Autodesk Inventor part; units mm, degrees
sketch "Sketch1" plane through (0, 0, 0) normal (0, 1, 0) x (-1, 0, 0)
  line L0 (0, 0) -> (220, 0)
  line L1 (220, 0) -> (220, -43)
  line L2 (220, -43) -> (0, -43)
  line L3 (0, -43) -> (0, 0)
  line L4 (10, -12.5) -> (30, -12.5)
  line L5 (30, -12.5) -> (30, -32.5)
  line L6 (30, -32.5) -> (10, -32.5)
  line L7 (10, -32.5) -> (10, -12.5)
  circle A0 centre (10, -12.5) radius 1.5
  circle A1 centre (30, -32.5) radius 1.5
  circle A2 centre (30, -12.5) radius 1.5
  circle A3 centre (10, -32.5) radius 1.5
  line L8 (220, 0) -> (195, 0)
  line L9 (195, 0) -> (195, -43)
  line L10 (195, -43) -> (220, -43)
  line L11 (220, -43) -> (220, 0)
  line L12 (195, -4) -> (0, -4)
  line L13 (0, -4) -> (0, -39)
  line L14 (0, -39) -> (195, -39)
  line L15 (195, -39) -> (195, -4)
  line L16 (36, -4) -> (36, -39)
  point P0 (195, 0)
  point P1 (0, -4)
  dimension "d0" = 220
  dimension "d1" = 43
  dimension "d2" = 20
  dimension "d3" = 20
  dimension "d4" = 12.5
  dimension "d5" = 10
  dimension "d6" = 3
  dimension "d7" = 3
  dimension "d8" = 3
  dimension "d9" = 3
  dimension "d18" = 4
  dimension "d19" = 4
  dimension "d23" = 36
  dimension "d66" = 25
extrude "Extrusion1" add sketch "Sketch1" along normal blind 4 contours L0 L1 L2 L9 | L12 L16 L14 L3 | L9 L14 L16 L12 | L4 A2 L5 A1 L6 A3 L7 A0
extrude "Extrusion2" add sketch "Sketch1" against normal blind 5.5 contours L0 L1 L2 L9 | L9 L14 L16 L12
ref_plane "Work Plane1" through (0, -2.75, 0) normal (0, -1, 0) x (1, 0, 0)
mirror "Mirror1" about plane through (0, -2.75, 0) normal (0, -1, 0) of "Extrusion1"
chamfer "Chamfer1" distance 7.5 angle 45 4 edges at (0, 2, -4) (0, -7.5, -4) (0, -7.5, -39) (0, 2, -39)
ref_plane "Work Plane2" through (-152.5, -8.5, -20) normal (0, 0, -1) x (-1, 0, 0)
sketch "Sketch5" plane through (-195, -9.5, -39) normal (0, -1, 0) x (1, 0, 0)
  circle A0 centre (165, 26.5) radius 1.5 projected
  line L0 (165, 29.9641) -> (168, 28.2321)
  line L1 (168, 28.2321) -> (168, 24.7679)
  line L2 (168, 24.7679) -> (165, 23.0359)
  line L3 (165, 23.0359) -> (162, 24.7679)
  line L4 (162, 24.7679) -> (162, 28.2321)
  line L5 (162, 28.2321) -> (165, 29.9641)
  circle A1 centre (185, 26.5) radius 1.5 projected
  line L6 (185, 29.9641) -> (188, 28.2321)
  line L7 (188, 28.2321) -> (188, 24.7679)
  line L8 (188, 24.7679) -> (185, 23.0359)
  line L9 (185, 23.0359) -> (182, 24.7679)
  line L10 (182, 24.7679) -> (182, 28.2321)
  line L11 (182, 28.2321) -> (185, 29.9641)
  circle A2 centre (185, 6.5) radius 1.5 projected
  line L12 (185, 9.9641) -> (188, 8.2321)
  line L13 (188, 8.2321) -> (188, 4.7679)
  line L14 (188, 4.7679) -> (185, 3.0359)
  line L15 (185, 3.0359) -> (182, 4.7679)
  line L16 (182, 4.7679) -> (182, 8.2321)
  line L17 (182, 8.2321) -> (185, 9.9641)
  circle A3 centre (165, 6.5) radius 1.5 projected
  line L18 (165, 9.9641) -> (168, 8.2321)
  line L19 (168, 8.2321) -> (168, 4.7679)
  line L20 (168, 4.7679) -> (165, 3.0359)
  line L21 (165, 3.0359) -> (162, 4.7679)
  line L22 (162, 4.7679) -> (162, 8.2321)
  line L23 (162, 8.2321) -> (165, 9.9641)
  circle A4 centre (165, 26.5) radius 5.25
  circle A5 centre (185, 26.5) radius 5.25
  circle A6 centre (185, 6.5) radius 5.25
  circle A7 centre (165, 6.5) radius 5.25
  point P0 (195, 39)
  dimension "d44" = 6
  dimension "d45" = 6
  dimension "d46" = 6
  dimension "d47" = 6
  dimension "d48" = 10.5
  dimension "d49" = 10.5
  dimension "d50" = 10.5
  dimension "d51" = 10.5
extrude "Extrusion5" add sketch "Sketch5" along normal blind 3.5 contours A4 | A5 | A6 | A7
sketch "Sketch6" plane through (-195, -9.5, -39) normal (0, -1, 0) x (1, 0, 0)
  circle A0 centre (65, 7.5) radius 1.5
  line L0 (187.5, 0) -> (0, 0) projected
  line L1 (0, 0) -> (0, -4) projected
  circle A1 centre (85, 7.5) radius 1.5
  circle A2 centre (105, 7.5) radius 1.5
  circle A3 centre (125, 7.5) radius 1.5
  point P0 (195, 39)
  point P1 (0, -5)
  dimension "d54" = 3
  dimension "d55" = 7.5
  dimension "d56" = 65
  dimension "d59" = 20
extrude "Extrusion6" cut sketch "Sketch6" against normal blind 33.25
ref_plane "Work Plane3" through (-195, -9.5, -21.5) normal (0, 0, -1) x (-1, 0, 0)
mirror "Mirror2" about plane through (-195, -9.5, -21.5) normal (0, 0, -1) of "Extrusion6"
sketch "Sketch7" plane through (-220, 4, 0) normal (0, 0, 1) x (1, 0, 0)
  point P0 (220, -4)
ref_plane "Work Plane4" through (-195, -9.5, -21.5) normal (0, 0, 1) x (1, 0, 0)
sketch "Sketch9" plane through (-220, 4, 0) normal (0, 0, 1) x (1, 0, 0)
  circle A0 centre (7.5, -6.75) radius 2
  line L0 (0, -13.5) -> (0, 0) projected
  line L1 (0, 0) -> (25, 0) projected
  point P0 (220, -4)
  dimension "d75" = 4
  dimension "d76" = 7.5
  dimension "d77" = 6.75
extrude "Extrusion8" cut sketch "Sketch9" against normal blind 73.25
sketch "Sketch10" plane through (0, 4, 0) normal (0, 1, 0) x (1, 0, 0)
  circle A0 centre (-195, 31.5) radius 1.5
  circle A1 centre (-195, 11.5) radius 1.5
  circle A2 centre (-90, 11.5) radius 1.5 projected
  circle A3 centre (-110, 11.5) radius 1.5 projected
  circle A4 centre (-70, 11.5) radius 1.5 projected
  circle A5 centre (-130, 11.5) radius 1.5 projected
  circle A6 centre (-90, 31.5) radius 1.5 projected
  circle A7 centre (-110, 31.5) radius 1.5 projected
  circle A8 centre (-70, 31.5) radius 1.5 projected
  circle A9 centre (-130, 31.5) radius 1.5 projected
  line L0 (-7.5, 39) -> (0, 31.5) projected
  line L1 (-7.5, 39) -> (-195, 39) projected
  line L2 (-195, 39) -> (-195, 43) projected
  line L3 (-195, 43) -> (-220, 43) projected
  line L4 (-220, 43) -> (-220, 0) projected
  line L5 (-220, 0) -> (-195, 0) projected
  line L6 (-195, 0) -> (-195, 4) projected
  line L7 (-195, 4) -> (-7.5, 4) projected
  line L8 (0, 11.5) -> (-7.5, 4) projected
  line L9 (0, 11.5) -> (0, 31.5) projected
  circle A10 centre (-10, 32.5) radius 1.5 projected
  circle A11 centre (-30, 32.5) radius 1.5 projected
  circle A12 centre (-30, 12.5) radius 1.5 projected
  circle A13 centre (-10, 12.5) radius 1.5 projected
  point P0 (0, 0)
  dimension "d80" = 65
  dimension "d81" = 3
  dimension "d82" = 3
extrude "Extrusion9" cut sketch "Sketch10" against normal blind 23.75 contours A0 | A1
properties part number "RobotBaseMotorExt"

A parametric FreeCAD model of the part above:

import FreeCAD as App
import Part
import Sketcher
from FreeCAD import Vector
Q = App.Units.Quantity


def edges_at(feature, points):
    """Names of the edges that pass closest to the given points."""
    edges = feature.Shape.Edges
    near = lambda p: min(range(len(edges)), key=lambda i: edges[i].distToShape(Part.Vertex(*p))[0])
    return sorted({f"Edge{near(p) + 1}" for p in points})


def add_polygon(sketch, points):
    """Adds a closed chain of lines whose ends are joined by coincident constraints."""
    first, n = sketch.GeometryCount, len(points)
    for a, b in zip(points, points[1:] + points[:1]):
        sketch.addGeometry(Part.LineSegment(App.Vector(*a, 0), App.Vector(*b, 0)), False)
    for i in range(n):
        sketch.addConstraint(Sketcher.Constraint("Coincident", first + i, 2, first + (i + 1) % n, 1))

doc = App.newDocument("Part")
params = doc.addObject("Spreadsheet::Sheet", "Params")
for row, (alias, value) in enumerate([
    ("sketch1_diameter", "3 mm"),
    ("sketch1_width", "25 mm"),
    ("sketch1_height", "4 mm"),
    ("sketch1_height2", "43 mm"),
    ("pad1_length", "4 mm"),
    ("sketch2_width", "25 mm"),
    ("sketch2_height", "4 mm"),
    ("sketch2_height2", "43 mm"),
    ("pad2_length", "5.5 mm"),
    ("chamfer_size", "7.5 mm"),
    ("sketch3_diameter", "10.5 mm"),
    ("pad3_length", "3.5 mm"),
    ("sketch4_diameter", "3 mm"),
    ("pocket1_length", "33.25 mm"),
    ("sketch5_diameter", "4 mm"),
    ("pocket2_length", "73.25 mm"),
    ("sketch6_diameter", "3 mm"),
    ("pocket3_length", "23.75 mm"),
], start=1):
    params.set(f"A{row}", alias)
    params.set(f"B{row}", "=" + value)
    params.setAlias(f"B{row}", alias)

body = doc.addObject("PartDesign::Body", "Body")

# Sketch on XZ plane
sketch1 = body.newObject("Sketcher::SketchObject", "Sketch")
sketch1.AttachmentSupport = (doc.getObject("XZ_Plane"), [""])
sketch1.MapMode = "FlatFace"
add_polygon(sketch1, [(-220, 0), (-195, 0), (-195, -4), (0, -4), (0, -39), (-195, -39), (-195, -43), (-220, -43)])  # lines 0-7
sketch1.addGeometry(Part.Circle(Vector(-10, -12.5, 0), Vector(0, 0, 1), 1.5), False)  # 8
sketch1.addGeometry(Part.Circle(Vector(-10, -32.5, 0), Vector(0, 0, 1), 1.5), False)  # 9
sketch1.addGeometry(Part.Circle(Vector(-30, -32.5, 0), Vector(0, 0, 1), 1.5), False)  # 10
sketch1.addGeometry(Part.Circle(Vector(-30, -12.5, 0), Vector(0, 0, 1), 1.5), False)  # 11
sketch1.addConstraint(Sketcher.Constraint("Horizontal", 0))
sketch1.addConstraint(Sketcher.Constraint("Vertical", 1))
sketch1.addConstraint(Sketcher.Constraint("Horizontal", 2))
sketch1.addConstraint(Sketcher.Constraint("Vertical", 3))
sketch1.addConstraint(Sketcher.Constraint("Horizontal", 4))
sketch1.addConstraint(Sketcher.Constraint("Vertical", 5))
sketch1.addConstraint(Sketcher.Constraint("Horizontal", 6))
sketch1.addConstraint(Sketcher.Constraint("Vertical", 7))
sketch1.addConstraint(Sketcher.Constraint("Equal", 8, 9))
sketch1.addConstraint(Sketcher.Constraint("Equal", 9, 10))
sketch1.addConstraint(Sketcher.Constraint("Equal", 10, 11))
sketch1.addConstraint(Sketcher.Constraint("PointOnObject", 0, 2, -1))
sketch1.addConstraint(Sketcher.Constraint("PointOnObject", 2, 2, -2))
sketch1.addConstraint(Sketcher.Constraint("Horizontal", 9, 3, 10, 3))
sketch1.addConstraint(Sketcher.Constraint("Horizontal", 8, 3, 11, 3))
sketch1.addConstraint(Sketcher.Constraint("Vertical", 8, 3, 9, 3))
sketch1.addConstraint(Sketcher.Constraint("Vertical", 10, 3, 11, 3))
sketch1.addConstraint(Sketcher.Constraint("Vertical", 1, 2, 4, 2))
sketch1.addConstraint(Sketcher.Constraint("Equal", 1, 5))
sketch1.addConstraint(Sketcher.Constraint("Diameter", 8, 3.0))
sketch1.addConstraint(Sketcher.Constraint("DistanceX", 0, 1, 0, 2, 25.0))
sketch1.addConstraint(Sketcher.Constraint("DistanceY", 1, 2, 1, 1, 4.0))
sketch1.addConstraint(Sketcher.Constraint("DistanceY", 7, 1, 7, 2, 43.0))
sketch1.addConstraint(Sketcher.Constraint("DistanceX", 8, 3, -1, 1, 10.0))
sketch1.addConstraint(Sketcher.Constraint("DistanceX", 6, 2, -1, 1, 220.0))
sketch1.addConstraint(Sketcher.Constraint("DistanceY", 9, 3, 8, 3, 20.0))
sketch1.addConstraint(Sketcher.Constraint("DistanceX", 10, 3, 9, 3, 20.0))
sketch1.addConstraint(Sketcher.Constraint("DistanceY", 8, 3, -1, 1, 12.5))
sketch1.setExpression("Constraints[27]", "Params.sketch1_diameter")
sketch1.setExpression("Constraints[28]", "Params.sketch1_width")
sketch1.setExpression("Constraints[29]", "Params.sketch1_height")
sketch1.setExpression("Constraints[30]", "Params.sketch1_height2")
pad1 = body.newObject("PartDesign::Pad", "Pad")
pad1.Profile = sketch1
pad1.setExpression("Length", "Params.pad1_length")
pad1.Reversed = True

# Sketch on XZ plane
sketch2 = body.newObject("Sketcher::SketchObject", "Sketch001")
sketch2.AttachmentSupport = (doc.getObject("XZ_Plane"), [""])
sketch2.MapMode = "FlatFace"
add_polygon(sketch2, [(-220, 0), (-195, 0), (-195, -4), (-36, -4), (-36, -39), (-195, -39), (-195, -43), (-220, -43)])  # lines 0-7
sketch2.addConstraint(Sketcher.Constraint("Horizontal", 0))
sketch2.addConstraint(Sketcher.Constraint("Vertical", 1))
sketch2.addConstraint(Sketcher.Constraint("Horizontal", 2))
sketch2.addConstraint(Sketcher.Constraint("Vertical", 3))
sketch2.addConstraint(Sketcher.Constraint("Horizontal", 4))
sketch2.addConstraint(Sketcher.Constraint("Vertical", 5))
sketch2.addConstraint(Sketcher.Constraint("Horizontal", 6))
sketch2.addConstraint(Sketcher.Constraint("Vertical", 7))
sketch2.addConstraint(Sketcher.Constraint("PointOnObject", 0, 2, -1))
sketch2.addConstraint(Sketcher.Constraint("Vertical", 1, 2, 4, 2))
sketch2.addConstraint(Sketcher.Constraint("Equal", 1, 5))
sketch2.addConstraint(Sketcher.Constraint("DistanceX", 0, 1, 0, 2, 25.0))
sketch2.addConstraint(Sketcher.Constraint("DistanceY", 1, 2, 1, 1, 4.0))
sketch2.addConstraint(Sketcher.Constraint("DistanceY", 7, 1, 7, 2, 43.0))
sketch2.addConstraint(Sketcher.Constraint("DistanceX", 2, 2, -1, 1, 36.0))
sketch2.addConstraint(Sketcher.Constraint("DistanceX", 6, 2, -1, 1, 220.0))
sketch2.setExpression("Constraints[19]", "Params.sketch2_width")
sketch2.setExpression("Constraints[20]", "Params.sketch2_height")
sketch2.setExpression("Constraints[21]", "Params.sketch2_height2")
pad2 = body.newObject("PartDesign::Pad", "Pad001")
pad2.Profile = sketch2
pad2.setExpression("Length", "Params.pad2_length")
doc.recompute()

datumplane = body.newObject("PartDesign::Plane", "DatumPlane")
datumplane.AttachmentSupport = (doc.getObject("XZ_Plane"), [""])
datumplane.MapMode = "FlatFace"
datumplane.AttachmentOffset = App.Placement(Vector(0, 0, 2.75), App.Rotation())
mirrored = body.newObject("PartDesign::Mirrored", "Mirrored")
mirrored.Originals = [pad1]
mirrored.MirrorPlane = (datumplane, [""])
body.Tip = mirrored
doc.recompute()

chamfer = body.newObject("PartDesign::Chamfer", "Chamfer")
chamfer.Base = (mirrored, edges_at(mirrored, [
    (0, 2, -4),
    (0, -7.5, -4),
    (0, -7.5, -39),
    (0, 2, -39),
]))
chamfer.setExpression("Size", "Params.chamfer_size")

# Sketch on XZ plane
sketch3 = body.newObject("Sketcher::SketchObject", "Sketch002")
sketch3.AttachmentSupport = (doc.getObject("XZ_Plane"), [""])
sketch3.MapMode = "FlatFace"
sketch3.AttachmentOffset = App.Placement(Vector(0, 0, 9.5), App.Rotation())
sketch3.addGeometry(Part.Circle(Vector(-30, -12.5, 0), Vector(0, 0, 1), 5.25), False)  # 0
add_polygon(sketch3, [(-33, -10.7679), (-30, -9.0359), (-27, -10.7679), (-27, -14.2321), (-30, -15.9641), (-33, -14.2321)])  # lines 1-6
sketch3.addGeometry(Part.Circle(Vector(-10, -12.5, 0), Vector(0, 0, 1), 5.25), False)  # 7
add_polygon(sketch3, [(-13, -10.7679), (-10, -9.0359), (-7, -10.7679), (-7, -14.2321), (-10, -15.9641), (-13, -14.2321)])  # lines 8-13
sketch3.addGeometry(Part.Circle(Vector(-10, -32.5, 0), Vector(0, 0, 1), 5.25), False)  # 14
add_polygon(sketch3, [(-13, -30.7679), (-10, -29.0359), (-7, -30.7679), (-7, -34.2321), (-10, -35.9641), (-13, -34.2321)])  # lines 15-20
sketch3.addGeometry(Part.Circle(Vector(-30, -32.5, 0), Vector(0, 0, 1), 5.25), False)  # 21
add_polygon(sketch3, [(-33, -30.7679), (-30, -29.0359), (-27, -30.7679), (-27, -34.2321), (-30, -35.9641), (-33, -34.2321)])  # lines 22-27
sketch3.addConstraint(Sketcher.Constraint("Vertical", 3))
sketch3.addConstraint(Sketcher.Constraint("Vertical", 6))
sketch3.addConstraint(Sketcher.Constraint("Vertical", 10))
sketch3.addConstraint(Sketcher.Constraint("Vertical", 13))
sketch3.addConstraint(Sketcher.Constraint("Vertical", 17))
sketch3.addConstraint(Sketcher.Constraint("Vertical", 20))
sketch3.addConstraint(Sketcher.Constraint("Vertical", 24))
sketch3.addConstraint(Sketcher.Constraint("Vertical", 27))
sketch3.addConstraint(Sketcher.Constraint("Equal", 0, 7))
sketch3.addConstraint(Sketcher.Constraint("Equal", 7, 14))
sketch3.addConstraint(Sketcher.Constraint("Equal", 14, 21))
sketch3.addConstraint(Sketcher.Constraint("Parallel", 1, 4))
sketch3.addConstraint(Sketcher.Constraint("Parallel", 2, 5))
sketch3.addConstraint(Sketcher.Constraint("Parallel", 4, 8))
sketch3.addConstraint(Sketcher.Constraint("Parallel", 5, 9))
sketch3.addConstraint(Sketcher.Constraint("Parallel", 8, 11))
sketch3.addConstraint(Sketcher.Constraint("Parallel", 9, 12))
sketch3.addConstraint(Sketcher.Constraint("Parallel", 11, 15))
sketch3.addConstraint(Sketcher.Constraint("Parallel", 12, 16))
sketch3.addConstraint(Sketcher.Constraint("Parallel", 15, 18))
sketch3.addConstraint(Sketcher.Constraint("Parallel", 16, 19))
sketch3.addConstraint(Sketcher.Constraint("Parallel", 18, 22))
sketch3.addConstraint(Sketcher.Constraint("Parallel", 19, 23))
sketch3.addConstraint(Sketcher.Constraint("Parallel", 22, 25))
sketch3.addConstraint(Sketcher.Constraint("Parallel", 23, 26))
sketch3.addConstraint(Sketcher.Constraint("Horizontal", 0, 3, 7, 3))
sketch3.addConstraint(Sketcher.Constraint("Horizontal", 14, 3, 21, 3))
sketch3.addConstraint(Sketcher.Constraint("Horizontal", 3, 2, 5, 2))
sketch3.addConstraint(Sketcher.Constraint("Horizontal", 2, 2, 6, 2))
sketch3.addConstraint(Sketcher.Constraint("Horizontal", 1, 2, 8, 2))
sketch3.addConstraint(Sketcher.Constraint("Horizontal", 6, 2, 9, 2))
sketch3.addConstraint(Sketcher.Constraint("Horizontal", 5, 2, 10, 2))
sketch3.addConstraint(Sketcher.Constraint("Horizontal", 4, 2, 11, 2))
sketch3.addConstraint(Sketcher.Constraint("Horizontal", 10, 2, 12, 2))
sketch3.addConstraint(Sketcher.Constraint("Horizontal", 17, 2, 19, 2))
sketch3.addConstraint(Sketcher.Constraint("Horizontal", 16, 2, 20, 2))
sketch3.addConstraint(Sketcher.Constraint("Horizontal", 15, 2, 22, 2))
sketch3.addConstraint(Sketcher.Constraint("Horizontal", 20, 2, 23, 2))
sketch3.addConstraint(Sketcher.Constraint("Horizontal", 19, 2, 24, 2))
sketch3.addConstraint(Sketcher.Constraint("Horizontal", 18, 2, 25, 2))
sketch3.addConstraint(Sketcher.Constraint("Horizontal", 24, 2, 26, 2))
sketch3.addConstraint(Sketcher.Constraint("Vertical", 7, 3, 14, 3))
sketch3.addConstraint(Sketcher.Constraint("Vertical", 0, 3, 21, 3))
sketch3.addConstraint(Sketcher.Constraint("Vertical", 21, 3, 1, 2))
sketch3.addConstraint(Sketcher.Constraint("Vertical", 1, 2, 4, 2))
sketch3.addConstraint(Sketcher.Constraint("Vertical", 14, 3, 8, 2))
sketch3.addConstraint(Sketcher.Constraint("Vertical", 11, 2, 15, 2))
sketch3.addConstraint(Sketcher.Constraint("Vertical", 10, 2, 16, 2))
sketch3.addConstraint(Sketcher.Constraint("Vertical", 4, 2, 22, 2))
sketch3.addConstraint(Sketcher.Constraint("Equal", 13, 17))
sketch3.addConstraint(Sketcher.Constraint("Diameter", 0, 10.5))
sketch3.addConstraint(Sketcher.Constraint("DistanceX", 5, 2, 3, 2, 6.0))
sketch3.addConstraint(Sketcher.Constraint("Angle", 1, Q("29.9993 deg")))
sketch3.addConstraint(Sketcher.Constraint("DistanceX", 0, 3, -1, 1, 30.0))
sketch3.addConstraint(Sketcher.Constraint("DistanceX", 7, 3, -1, 1, 10.0))
sketch3.addConstraint(Sketcher.Constraint("DistanceY", 14, 3, 7, 3, 20.0))
sketch3.addConstraint(Sketcher.Constraint("DistanceY", 17, 2, 10, 2, 20.0))
sketch3.addConstraint(Sketcher.Constraint("DistanceY", 0, 3, -1, 1, 12.5))
sketch3.addConstraint(Sketcher.Constraint("DistanceY", 3, 2, 3, 1, 3.4642))
sketch3.addConstraint(Sketcher.Constraint("DistanceY", 1, 2, -1, 1, 9.036))
sketch3.setExpression("Constraints[74]", "Params.sketch3_diameter")
pad3 = body.newObject("PartDesign::Pad", "Pad002")
pad3.Profile = sketch3
pad3.setExpression("Length", "Params.pad3_length")

# Sketch on XZ plane
sketch4 = body.newObject("Sketcher::SketchObject", "Sketch003")
sketch4.AttachmentSupport = (doc.getObject("XZ_Plane"), [""])
sketch4.MapMode = "FlatFace"
sketch4.AttachmentOffset = App.Placement(Vector(0, 0, 9.5), App.Rotation())
sketch4.addGeometry(Part.Circle(Vector(-130, -31.5, 0), Vector(0, 0, 1), 1.5), False)
sketch4.addGeometry(Part.Circle(Vector(-110, -31.5, 0), Vector(0, 0, 1), 1.5), False)
sketch4.addGeometry(Part.Circle(Vector(-90, -31.5, 0), Vector(0, 0, 1), 1.5), False)
sketch4.addGeometry(Part.Circle(Vector(-70, -31.5, 0), Vector(0, 0, 1), 1.5), False)
sketch4.addConstraint(Sketcher.Constraint("Equal", 0, 1))
sketch4.addConstraint(Sketcher.Constraint("Equal", 1, 2))
sketch4.addConstraint(Sketcher.Constraint("Equal", 2, 3))
sketch4.addConstraint(Sketcher.Constraint("Horizontal", 0, 3, 1, 3))
sketch4.addConstraint(Sketcher.Constraint("Horizontal", 1, 3, 2, 3))
sketch4.addConstraint(Sketcher.Constraint("Horizontal", 2, 3, 3, 3))
sketch4.addConstraint(Sketcher.Constraint("Diameter", 0, 3.0))
sketch4.addConstraint(Sketcher.Constraint("DistanceX", 0, 3, 1, 3, 20.0))
sketch4.addConstraint(Sketcher.Constraint("DistanceX", 1, 3, 2, 3, 20.0))
sketch4.addConstraint(Sketcher.Constraint("DistanceX", 2, 3, 3, 3, 20.0))
sketch4.addConstraint(Sketcher.Constraint("DistanceX", 0, 3, -1, 1, 130.0))
sketch4.addConstraint(Sketcher.Constraint("DistanceY", 0, 3, -1, 1, 31.5))
sketch4.setExpression("Constraints[6]", "Params.sketch4_diameter")
pocket1 = body.newObject("PartDesign::Pocket", "Pocket")
pocket1.Profile = sketch4
pocket1.setExpression("Length", "Params.pocket1_length")
doc.recompute()

datumplane2 = body.newObject("PartDesign::Plane", "DatumPlane001")
datumplane2.AttachmentSupport = (doc.getObject("XY_Plane"), [""])
datumplane2.MapMode = "FlatFace"
datumplane2.AttachmentOffset = App.Placement(Vector(0, 0, -21.5), App.Rotation())
mirrored2 = body.newObject("PartDesign::Mirrored", "Mirrored001")
mirrored2.Originals = [pocket1]
mirrored2.MirrorPlane = (datumplane2, [""])
body.Tip = mirrored2

# Sketch on XY plane
sketch5 = body.newObject("Sketcher::SketchObject", "Sketch004")
sketch5.AttachmentSupport = (doc.getObject("XY_Plane"), [""])
sketch5.MapMode = "FlatFace"
sketch5.addGeometry(Part.Circle(Vector(-212.5, -2.75, 0), Vector(0, 0, 1), 2), False)
sketch5.addConstraint(Sketcher.Constraint("Diameter", 0, 4.0))
sketch5.addConstraint(Sketcher.Constraint("DistanceX", 0, 3, -1, 1, 212.5))
sketch5.addConstraint(Sketcher.Constraint("DistanceY", 0, 3, -1, 1, 2.75))
sketch5.setExpression("Constraints[0]", "Params.sketch5_diameter")
pocket2 = body.newObject("PartDesign::Pocket", "Pocket001")
pocket2.Profile = sketch5
pocket2.setExpression("Length", "Params.pocket2_length")

# Sketch on XZ plane
sketch6 = body.newObject("Sketcher::SketchObject", "Sketch005")
sketch6.AttachmentSupport = (doc.getObject("XZ_Plane"), [""])
sketch6.MapMode = "FlatFace"
sketch6.AttachmentOffset = App.Placement(Vector(0, 0, -4), App.Rotation())
sketch6.addGeometry(Part.Circle(Vector(-195, -31.5, 0), Vector(0, 0, 1), 1.5), False)
sketch6.addGeometry(Part.Circle(Vector(-195, -11.5, 0), Vector(0, 0, 1), 1.5), False)
sketch6.addConstraint(Sketcher.Constraint("Equal", 0, 1))
sketch6.addConstraint(Sketcher.Constraint("Vertical", 0, 3, 1, 3))
sketch6.addConstraint(Sketcher.Constraint("Diameter", 0, 3.0))
sketch6.addConstraint(Sketcher.Constraint("DistanceX", 0, 3, -1, 1, 195.0))
sketch6.addConstraint(Sketcher.Constraint("DistanceY", 0, 3, 1, 3, 20.0))
sketch6.addConstraint(Sketcher.Constraint("DistanceY", 0, 3, -1, 1, 31.5))
sketch6.setExpression("Constraints[2]", "Params.sketch6_diameter")
pocket3 = body.newObject("PartDesign::Pocket", "Pocket002")
pocket3.Profile = sketch6
pocket3.setExpression("Length", "Params.pocket3_length")
pocket3.Reversed = True

doc.recompute()
